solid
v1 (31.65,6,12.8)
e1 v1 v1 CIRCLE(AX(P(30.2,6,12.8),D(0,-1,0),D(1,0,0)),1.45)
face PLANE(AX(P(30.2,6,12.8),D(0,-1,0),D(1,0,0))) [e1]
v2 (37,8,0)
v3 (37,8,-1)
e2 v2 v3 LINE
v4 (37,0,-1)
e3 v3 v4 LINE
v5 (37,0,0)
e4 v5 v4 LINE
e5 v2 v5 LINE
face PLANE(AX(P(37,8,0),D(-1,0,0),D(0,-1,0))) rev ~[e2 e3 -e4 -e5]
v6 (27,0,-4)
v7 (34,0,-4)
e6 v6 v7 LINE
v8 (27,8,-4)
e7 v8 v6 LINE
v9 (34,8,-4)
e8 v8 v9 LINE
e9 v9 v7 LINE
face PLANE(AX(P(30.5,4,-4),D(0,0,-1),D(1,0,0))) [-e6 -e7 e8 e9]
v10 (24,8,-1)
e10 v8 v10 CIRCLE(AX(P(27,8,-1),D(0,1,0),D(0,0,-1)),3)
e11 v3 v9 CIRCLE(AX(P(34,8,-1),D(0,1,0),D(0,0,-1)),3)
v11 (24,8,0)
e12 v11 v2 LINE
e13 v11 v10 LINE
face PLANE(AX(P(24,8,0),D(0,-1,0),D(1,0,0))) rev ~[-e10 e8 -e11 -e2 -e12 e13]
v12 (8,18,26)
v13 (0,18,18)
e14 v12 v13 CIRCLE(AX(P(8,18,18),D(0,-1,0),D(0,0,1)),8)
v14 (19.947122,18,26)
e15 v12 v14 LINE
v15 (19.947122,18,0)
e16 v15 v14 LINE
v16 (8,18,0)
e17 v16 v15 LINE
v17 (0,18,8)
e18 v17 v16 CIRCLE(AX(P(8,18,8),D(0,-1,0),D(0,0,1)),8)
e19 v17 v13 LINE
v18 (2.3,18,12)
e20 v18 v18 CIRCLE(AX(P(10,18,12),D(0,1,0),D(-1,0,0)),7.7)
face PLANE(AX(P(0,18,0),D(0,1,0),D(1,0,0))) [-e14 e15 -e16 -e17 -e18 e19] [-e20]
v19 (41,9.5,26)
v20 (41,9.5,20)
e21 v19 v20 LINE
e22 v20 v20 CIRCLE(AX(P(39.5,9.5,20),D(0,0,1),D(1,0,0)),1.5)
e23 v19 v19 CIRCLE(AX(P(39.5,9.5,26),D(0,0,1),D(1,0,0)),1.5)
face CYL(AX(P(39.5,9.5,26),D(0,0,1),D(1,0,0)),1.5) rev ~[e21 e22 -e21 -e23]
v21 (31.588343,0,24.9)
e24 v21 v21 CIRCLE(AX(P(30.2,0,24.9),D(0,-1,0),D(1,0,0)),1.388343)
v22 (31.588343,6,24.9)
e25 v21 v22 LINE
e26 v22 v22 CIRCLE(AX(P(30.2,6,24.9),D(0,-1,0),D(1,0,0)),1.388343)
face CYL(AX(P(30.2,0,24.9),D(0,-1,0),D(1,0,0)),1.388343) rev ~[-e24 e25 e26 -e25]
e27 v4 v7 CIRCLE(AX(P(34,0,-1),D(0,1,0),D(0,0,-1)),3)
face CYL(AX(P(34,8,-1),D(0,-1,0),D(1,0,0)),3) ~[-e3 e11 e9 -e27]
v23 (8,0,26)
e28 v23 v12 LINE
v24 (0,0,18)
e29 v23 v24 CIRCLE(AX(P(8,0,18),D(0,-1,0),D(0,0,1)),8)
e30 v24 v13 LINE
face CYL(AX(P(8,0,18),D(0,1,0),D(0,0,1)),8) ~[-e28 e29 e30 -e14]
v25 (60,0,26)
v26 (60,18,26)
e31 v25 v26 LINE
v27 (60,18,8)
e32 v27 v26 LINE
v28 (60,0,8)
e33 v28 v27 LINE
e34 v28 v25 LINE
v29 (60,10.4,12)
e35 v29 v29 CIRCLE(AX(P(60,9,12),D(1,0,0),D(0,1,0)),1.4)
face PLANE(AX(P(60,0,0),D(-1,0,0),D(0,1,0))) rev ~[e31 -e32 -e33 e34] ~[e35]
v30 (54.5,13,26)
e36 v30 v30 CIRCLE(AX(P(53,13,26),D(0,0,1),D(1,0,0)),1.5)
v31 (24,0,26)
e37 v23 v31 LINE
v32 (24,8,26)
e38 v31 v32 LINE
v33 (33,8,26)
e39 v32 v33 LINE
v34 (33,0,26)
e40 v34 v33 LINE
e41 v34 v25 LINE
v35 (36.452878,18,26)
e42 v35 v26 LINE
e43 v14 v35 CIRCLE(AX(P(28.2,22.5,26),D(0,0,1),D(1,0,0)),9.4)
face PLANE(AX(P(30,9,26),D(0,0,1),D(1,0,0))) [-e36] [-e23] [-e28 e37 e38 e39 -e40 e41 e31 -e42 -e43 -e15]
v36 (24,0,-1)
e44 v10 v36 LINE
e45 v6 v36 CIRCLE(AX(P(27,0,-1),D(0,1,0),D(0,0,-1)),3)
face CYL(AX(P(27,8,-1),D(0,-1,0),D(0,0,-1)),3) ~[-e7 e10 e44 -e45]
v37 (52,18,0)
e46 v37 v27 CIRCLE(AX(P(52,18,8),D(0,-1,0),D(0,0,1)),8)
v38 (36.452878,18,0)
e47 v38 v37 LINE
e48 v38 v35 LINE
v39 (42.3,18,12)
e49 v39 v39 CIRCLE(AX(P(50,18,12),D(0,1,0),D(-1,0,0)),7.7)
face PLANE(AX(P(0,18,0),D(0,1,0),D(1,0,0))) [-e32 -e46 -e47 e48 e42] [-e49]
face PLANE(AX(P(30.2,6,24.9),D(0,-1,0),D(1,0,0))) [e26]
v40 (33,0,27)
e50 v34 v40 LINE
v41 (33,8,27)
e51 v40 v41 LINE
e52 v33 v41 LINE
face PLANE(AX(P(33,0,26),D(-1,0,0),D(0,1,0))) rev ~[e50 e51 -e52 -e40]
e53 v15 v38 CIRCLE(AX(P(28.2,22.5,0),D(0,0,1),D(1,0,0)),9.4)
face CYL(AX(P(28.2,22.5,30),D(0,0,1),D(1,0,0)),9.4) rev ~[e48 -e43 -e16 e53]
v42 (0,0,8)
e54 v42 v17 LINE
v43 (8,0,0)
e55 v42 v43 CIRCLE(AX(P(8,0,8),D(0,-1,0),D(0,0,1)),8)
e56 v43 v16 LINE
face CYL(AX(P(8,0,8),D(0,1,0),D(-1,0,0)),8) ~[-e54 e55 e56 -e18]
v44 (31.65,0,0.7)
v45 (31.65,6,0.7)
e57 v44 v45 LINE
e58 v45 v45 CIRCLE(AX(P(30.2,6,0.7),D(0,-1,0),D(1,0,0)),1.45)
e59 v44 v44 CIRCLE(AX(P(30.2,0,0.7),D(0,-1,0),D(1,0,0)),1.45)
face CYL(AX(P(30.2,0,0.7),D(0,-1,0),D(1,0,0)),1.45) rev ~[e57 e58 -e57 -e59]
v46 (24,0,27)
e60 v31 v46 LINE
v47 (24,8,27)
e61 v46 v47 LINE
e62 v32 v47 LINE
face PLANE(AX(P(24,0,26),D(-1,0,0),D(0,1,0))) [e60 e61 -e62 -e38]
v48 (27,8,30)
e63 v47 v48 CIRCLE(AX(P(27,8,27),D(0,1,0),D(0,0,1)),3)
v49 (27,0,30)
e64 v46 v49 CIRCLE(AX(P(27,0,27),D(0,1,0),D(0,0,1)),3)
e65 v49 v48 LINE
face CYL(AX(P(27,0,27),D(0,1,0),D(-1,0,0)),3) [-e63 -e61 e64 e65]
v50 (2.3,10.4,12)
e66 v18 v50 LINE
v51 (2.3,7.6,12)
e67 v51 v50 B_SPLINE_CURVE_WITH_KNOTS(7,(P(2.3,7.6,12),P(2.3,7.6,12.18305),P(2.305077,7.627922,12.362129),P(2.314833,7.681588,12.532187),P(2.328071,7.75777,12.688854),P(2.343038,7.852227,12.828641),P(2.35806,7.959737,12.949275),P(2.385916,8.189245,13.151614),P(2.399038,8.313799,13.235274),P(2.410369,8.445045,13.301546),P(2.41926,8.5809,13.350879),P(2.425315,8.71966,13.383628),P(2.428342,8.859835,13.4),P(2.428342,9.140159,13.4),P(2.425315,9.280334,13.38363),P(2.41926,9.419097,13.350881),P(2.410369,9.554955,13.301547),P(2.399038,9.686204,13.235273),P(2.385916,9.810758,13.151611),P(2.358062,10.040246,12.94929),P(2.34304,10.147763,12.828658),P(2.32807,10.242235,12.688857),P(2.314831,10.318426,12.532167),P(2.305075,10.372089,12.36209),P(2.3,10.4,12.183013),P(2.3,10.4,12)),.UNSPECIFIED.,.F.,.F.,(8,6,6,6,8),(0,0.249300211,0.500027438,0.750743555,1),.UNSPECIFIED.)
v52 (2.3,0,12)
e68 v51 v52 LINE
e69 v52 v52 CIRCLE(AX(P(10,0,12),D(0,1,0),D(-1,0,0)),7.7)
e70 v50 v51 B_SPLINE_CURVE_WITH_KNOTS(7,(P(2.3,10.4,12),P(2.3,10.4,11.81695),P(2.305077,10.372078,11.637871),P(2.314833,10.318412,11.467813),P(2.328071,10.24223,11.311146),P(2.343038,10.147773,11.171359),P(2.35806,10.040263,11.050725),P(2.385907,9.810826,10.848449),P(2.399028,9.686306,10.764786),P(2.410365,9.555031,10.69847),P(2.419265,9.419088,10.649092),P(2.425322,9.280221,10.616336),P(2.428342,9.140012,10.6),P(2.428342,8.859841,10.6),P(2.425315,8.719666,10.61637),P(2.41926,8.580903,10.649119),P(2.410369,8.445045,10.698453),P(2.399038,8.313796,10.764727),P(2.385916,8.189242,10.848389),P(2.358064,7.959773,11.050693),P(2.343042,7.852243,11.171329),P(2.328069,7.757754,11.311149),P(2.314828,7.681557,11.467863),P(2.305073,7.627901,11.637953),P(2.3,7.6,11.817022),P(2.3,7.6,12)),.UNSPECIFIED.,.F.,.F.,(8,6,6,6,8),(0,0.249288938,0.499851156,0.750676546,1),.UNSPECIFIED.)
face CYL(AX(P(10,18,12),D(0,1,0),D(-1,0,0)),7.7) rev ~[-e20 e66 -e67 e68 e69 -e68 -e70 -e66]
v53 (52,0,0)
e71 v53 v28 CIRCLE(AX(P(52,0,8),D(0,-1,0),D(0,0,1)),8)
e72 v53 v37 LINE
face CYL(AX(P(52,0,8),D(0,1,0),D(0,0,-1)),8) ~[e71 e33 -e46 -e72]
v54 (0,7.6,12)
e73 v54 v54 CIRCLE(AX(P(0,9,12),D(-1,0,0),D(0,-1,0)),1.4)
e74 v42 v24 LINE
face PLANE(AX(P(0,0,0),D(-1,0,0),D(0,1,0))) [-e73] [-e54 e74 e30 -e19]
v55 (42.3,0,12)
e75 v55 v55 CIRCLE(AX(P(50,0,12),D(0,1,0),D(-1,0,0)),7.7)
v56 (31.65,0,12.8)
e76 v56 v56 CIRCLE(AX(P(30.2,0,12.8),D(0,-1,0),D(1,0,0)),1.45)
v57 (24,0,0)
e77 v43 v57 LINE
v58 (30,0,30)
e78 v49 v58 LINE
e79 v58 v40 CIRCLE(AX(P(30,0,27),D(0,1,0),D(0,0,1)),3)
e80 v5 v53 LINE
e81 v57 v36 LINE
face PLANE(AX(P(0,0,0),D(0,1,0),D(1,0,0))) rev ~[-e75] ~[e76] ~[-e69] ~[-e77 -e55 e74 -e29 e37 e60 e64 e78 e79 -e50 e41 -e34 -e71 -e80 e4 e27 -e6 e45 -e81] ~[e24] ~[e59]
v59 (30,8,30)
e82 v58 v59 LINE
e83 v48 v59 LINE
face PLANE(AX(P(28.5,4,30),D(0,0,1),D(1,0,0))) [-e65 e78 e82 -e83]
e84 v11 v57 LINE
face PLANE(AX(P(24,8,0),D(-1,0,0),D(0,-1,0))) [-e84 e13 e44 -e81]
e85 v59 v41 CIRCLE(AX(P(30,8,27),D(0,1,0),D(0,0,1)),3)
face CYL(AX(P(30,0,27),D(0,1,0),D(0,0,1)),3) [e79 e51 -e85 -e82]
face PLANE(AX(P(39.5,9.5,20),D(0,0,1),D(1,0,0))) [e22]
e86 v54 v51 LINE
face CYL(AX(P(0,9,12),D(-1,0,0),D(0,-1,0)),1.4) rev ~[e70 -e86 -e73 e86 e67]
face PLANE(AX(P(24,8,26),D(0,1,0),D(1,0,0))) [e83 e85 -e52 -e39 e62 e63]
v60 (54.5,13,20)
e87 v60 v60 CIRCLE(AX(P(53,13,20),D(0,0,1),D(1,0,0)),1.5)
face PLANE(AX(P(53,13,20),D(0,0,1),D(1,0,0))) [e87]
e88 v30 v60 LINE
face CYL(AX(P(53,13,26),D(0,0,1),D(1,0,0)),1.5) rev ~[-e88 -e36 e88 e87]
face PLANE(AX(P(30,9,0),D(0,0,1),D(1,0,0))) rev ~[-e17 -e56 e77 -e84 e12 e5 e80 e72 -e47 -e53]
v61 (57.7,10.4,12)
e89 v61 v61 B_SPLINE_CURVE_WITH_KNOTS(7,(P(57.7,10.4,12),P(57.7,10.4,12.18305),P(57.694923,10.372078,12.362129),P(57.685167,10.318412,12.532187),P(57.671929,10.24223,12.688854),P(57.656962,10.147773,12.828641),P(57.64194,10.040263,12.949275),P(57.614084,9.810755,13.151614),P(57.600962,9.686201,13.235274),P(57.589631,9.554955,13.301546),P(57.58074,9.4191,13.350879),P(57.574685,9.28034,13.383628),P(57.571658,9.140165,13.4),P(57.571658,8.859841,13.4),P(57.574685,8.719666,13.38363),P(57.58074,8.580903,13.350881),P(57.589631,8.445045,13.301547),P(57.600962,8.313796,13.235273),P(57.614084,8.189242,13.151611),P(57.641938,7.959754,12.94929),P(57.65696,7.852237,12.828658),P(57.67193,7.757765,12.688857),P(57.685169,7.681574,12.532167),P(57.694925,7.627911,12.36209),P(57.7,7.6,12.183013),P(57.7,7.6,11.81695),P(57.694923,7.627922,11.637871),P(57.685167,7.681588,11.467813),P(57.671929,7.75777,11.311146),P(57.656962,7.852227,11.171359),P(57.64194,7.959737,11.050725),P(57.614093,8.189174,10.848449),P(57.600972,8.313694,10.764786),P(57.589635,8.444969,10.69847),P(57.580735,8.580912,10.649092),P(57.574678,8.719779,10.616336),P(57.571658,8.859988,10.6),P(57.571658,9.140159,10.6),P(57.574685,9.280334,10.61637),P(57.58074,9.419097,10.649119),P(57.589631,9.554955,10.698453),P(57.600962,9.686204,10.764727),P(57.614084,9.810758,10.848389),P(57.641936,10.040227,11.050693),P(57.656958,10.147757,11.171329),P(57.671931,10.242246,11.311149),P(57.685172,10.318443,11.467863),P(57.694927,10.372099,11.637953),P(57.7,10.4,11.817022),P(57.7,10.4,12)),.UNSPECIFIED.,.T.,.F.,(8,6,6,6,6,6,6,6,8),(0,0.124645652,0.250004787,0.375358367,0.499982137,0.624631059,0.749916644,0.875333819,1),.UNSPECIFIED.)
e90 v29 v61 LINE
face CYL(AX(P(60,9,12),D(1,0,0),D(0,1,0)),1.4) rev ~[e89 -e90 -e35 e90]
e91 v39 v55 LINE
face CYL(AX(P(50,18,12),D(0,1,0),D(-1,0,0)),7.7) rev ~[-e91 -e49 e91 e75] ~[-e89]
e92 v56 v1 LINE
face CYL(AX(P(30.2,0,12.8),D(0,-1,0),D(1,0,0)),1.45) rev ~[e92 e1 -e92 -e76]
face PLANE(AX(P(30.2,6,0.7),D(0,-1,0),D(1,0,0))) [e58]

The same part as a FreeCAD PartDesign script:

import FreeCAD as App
import Part
import Sketcher
from FreeCAD import Vector


def edges_at(feature, points):
    """Names of the edges that pass closest to the given points."""
    edges = feature.Shape.Edges
    near = lambda p: min(range(len(edges)), key=lambda i: edges[i].distToShape(Part.Vertex(*p))[0])
    return sorted({f"Edge{near(p) + 1}" for p in points})


def add_polygon(sketch, points):
    """Adds a closed chain of lines whose ends are joined by coincident constraints."""
    first, n = sketch.GeometryCount, len(points)
    for a, b in zip(points, points[1:] + points[:1]):
        sketch.addGeometry(Part.LineSegment(App.Vector(*a, 0), App.Vector(*b, 0)), False)
    for i in range(n):
        sketch.addConstraint(Sketcher.Constraint("Coincident", first + i, 2, first + (i + 1) % n, 1))

doc = App.newDocument("Part")
body = doc.addObject("PartDesign::Body", "Body")

# Sketch on XY plane
sketch1 = body.newObject("Sketcher::SketchObject", "Sketch")
sketch1.AttachmentSupport = (doc.getObject("XY_Plane"), [""])
sketch1.MapMode = "FlatFace"
add_polygon(sketch1, [(0, 18), (0, 0), (60, 0), (60, 18)])  # lines 0-3
sketch1.addConstraint(Sketcher.Constraint("Vertical", 0))
sketch1.addConstraint(Sketcher.Constraint("Horizontal", 1))
sketch1.addConstraint(Sketcher.Constraint("Vertical", 2))
sketch1.addConstraint(Sketcher.Constraint("Horizontal", 3))
sketch1.addConstraint(Sketcher.Constraint("Coincident", 0, 2, -1, 1))
sketch1.addConstraint(Sketcher.Constraint("DistanceX", 1, 1, 1, 2, 60.0))
sketch1.addConstraint(Sketcher.Constraint("DistanceY", 0, 2, 0, 1, 18.0))
pad1 = body.newObject("PartDesign::Pad", "Pad")
pad1.Profile = sketch1
pad1.Length = 26

# Sketch on XZ plane
sketch2 = body.newObject("Sketcher::SketchObject", "Sketch001")
sketch2.AttachmentSupport = (doc.getObject("XZ_Plane"), [""])
sketch2.MapMode = "FlatFace"
sketch2.AttachmentOffset = App.Placement(Vector(0, 0, -18), App.Rotation())
sketch2.addGeometry(Part.Circle(Vector(50, 12, 0), Vector(0, 0, 1), 8), False)
sketch2.addGeometry(Part.Circle(Vector(10, 12, 0), Vector(0, 0, 1), 8), False)
sketch2.addConstraint(Sketcher.Constraint("Equal", 0, 1))
sketch2.addConstraint(Sketcher.Constraint("Horizontal", 0, 3, 1, 3))
sketch2.addConstraint(Sketcher.Constraint("Diameter", 0, 15.4))
sketch2.addConstraint(Sketcher.Constraint("DistanceX", -1, 1, 0, 3, 50.0))
sketch2.addConstraint(Sketcher.Constraint("DistanceY", -1, 1, 0, 3, 12.0))
sketch2.addConstraint(Sketcher.Constraint("DistanceX", -1, 1, 1, 3, 10.0))
pocket1 = body.newObject("PartDesign::Pocket", "Pocket")
pocket1.Profile = sketch2
pocket1.Type = "ThroughAll"
pocket1.Reversed = True

# Sketch on YZ plane
sketch3 = body.newObject("Sketcher::SketchObject", "Sketch002")
sketch3.AttachmentSupport = (doc.getObject("YZ_Plane"), [""])
sketch3.MapMode = "FlatFace"
sketch3.AttachmentOffset = App.Placement(Vector(0, 0, 60), App.Rotation())
sketch3.addGeometry(Part.Circle(Vector(9, 12, 0), Vector(0, 0, 1), 1.4), False)
sketch3.addConstraint(Sketcher.Constraint("Diameter", 0, 2.8))
sketch3.addConstraint(Sketcher.Constraint("DistanceX", -1, 1, 0, 3, 9.0))
sketch3.addConstraint(Sketcher.Constraint("DistanceY", -1, 1, 0, 3, 12.0))
pocket2 = body.newObject("PartDesign::Pocket", "Pocket001")
pocket2.Profile = sketch3
pocket2.Length = 5

# Sketch on XY plane
sketch4 = body.newObject("Sketcher::SketchObject", "Sketch003")
sketch4.AttachmentSupport = (doc.getObject("XY_Plane"), [""])
sketch4.MapMode = "FlatFace"
sketch4.AttachmentOffset = App.Placement(Vector(0, 0, 26), App.Rotation())
sketch4.addGeometry(Part.Circle(Vector(39.5, 9.5, 0), Vector(0, 0, 1), 1.5), False)
sketch4.addGeometry(Part.Circle(Vector(53, 13, 0), Vector(0, 0, 1), 1.5), False)
sketch4.addConstraint(Sketcher.Constraint("Equal", 0, 1))
sketch4.addConstraint(Sketcher.Constraint("Diameter", 0, 3.0))
sketch4.addConstraint(Sketcher.Constraint("DistanceX", -1, 1, 1, 3, 53.0))
sketch4.addConstraint(Sketcher.Constraint("DistanceY", -1, 1, 1, 3, 13.0))
sketch4.addConstraint(Sketcher.Constraint("DistanceX", -1, 1, 0, 3, 39.5))
sketch4.addConstraint(Sketcher.Constraint("DistanceY", -1, 1, 0, 3, 9.5))
pocket3 = body.newObject("PartDesign::Pocket", "Pocket002")
pocket3.Profile = sketch4
pocket3.Length = 6

# Sketch on YZ plane
sketch5 = body.newObject("Sketcher::SketchObject", "Sketch004")
sketch5.AttachmentSupport = (doc.getObject("YZ_Plane"), [""])
sketch5.MapMode = "FlatFace"
sketch5.addGeometry(Part.Circle(Vector(9, 12, 0), Vector(0, 0, 1), 1.4), False)
sketch5.addConstraint(Sketcher.Constraint("Diameter", 0, 2.8))
sketch5.addConstraint(Sketcher.Constraint("DistanceX", -1, 1, 0, 3, 9.0))
sketch5.addConstraint(Sketcher.Constraint("DistanceY", -1, 1, 0, 3, 12.0))
pocket4 = body.newObject("PartDesign::Pocket", "Pocket003")
pocket4.Profile = sketch5
pocket4.Length = 5
pocket4.Reversed = True

# Sketch on XY plane
sketch6 = body.newObject("Sketcher::SketchObject", "Sketch005")
sketch6.AttachmentSupport = (doc.getObject("XY_Plane"), [""])
sketch6.MapMode = "FlatFace"
add_polygon(sketch6, [(24, 0), (24, 8), (37, 8), (37, 0)])  # lines 0-3
sketch6.addConstraint(Sketcher.Constraint("Vertical", 0))
sketch6.addConstraint(Sketcher.Constraint("Horizontal", 1))
sketch6.addConstraint(Sketcher.Constraint("Vertical", 2))
sketch6.addConstraint(Sketcher.Constraint("Horizontal", 3))
sketch6.addConstraint(Sketcher.Constraint("PointOnObject", 2, 2, -1))
sketch6.addConstraint(Sketcher.Constraint("DistanceX", 1, 1, 1, 2, 13.0))
sketch6.addConstraint(Sketcher.Constraint("DistanceY", 0, 1, 0, 2, 8.0))
sketch6.addConstraint(Sketcher.Constraint("DistanceX", -1, 1, 0, 2, 24.0))
pad2 = body.newObject("PartDesign::Pad", "Pad001")
pad2.Profile = sketch6
pad2.Length = 4
pad2.Reversed = True

# Sketch on XY plane
sketch7 = body.newObject("Sketcher::SketchObject", "Sketch006")
sketch7.AttachmentSupport = (doc.getObject("XY_Plane"), [""])
sketch7.MapMode = "FlatFace"
sketch7.AttachmentOffset = App.Placement(Vector(0, 0, 26), App.Rotation())
add_polygon(sketch7, [(24, 8), (24, 0), (33, 0), (33, 8)])  # lines 0-3
sketch7.addConstraint(Sketcher.Constraint("Vertical", 0))
sketch7.addConstraint(Sketcher.Constraint("Horizontal", 1))
sketch7.addConstraint(Sketcher.Constraint("Vertical", 2))
sketch7.addConstraint(Sketcher.Constraint("Horizontal", 3))
sketch7.addConstraint(Sketcher.Constraint("PointOnObject", 0, 2, -1))
sketch7.addConstraint(Sketcher.Constraint("DistanceX", 1, 1, 1, 2, 9.0))
sketch7.addConstraint(Sketcher.Constraint("DistanceY", 0, 2, 0, 1, 8.0))
sketch7.addConstraint(Sketcher.Constraint("DistanceX", -1, 1, 0, 2, 24.0))
pad3 = body.newObject("PartDesign::Pad", "Pad002")
pad3.Profile = sketch7
pad3.Length = 4

# Sketch on XY plane
sketch8 = body.newObject("Sketcher::SketchObject", "Sketch007")
sketch8.AttachmentSupport = (doc.getObject("XY_Plane"), [""])
sketch8.MapMode = "FlatFace"
sketch8.AttachmentOffset = App.Placement(Vector(0, 0, 30), App.Rotation())
sketch8.addGeometry(Part.Circle(Vector(28, 22, 0), Vector(0, 0, 1), 9), False)
sketch8.addConstraint(Sketcher.Constraint("Diameter", 0, 18.8))
sketch8.addConstraint(Sketcher.Constraint("DistanceX", -1, 1, 0, 3, 28.2))
sketch8.addConstraint(Sketcher.Constraint("DistanceY", -1, 1, 0, 3, 22.5))
pocket5 = body.newObject("PartDesign::Pocket", "Pocket004")
pocket5.Profile = sketch8
pocket5.Type = "ThroughAll"
doc.recompute()

fillet = body.newObject("PartDesign::Fillet", "Fillet")
fillet.Base = (pocket5, edges_at(pocket5, [
    (24, 4, 30),
    (33, 4, 30),
    (37, 4, -4),
    (24, 4, -4),
]))
fillet.Radius = 3

# Sketch on XZ plane
sketch9 = body.newObject("Sketcher::SketchObject", "Sketch008")
sketch9.AttachmentSupport = (doc.getObject("XZ_Plane"), [""])
sketch9.MapMode = "FlatFace"
sketch9.addGeometry(Part.Circle(Vector(30.2, 12.8, 0), Vector(0, 0, 1), 1.4), False)
sketch9.addGeometry(Part.Circle(Vector(30.2, 0.7, 0), Vector(0, 0, 1), 1.4), False)
sketch9.addGeometry(Part.Circle(Vector(30.2, 24.9, 0), Vector(0, 0, 1), 1.4), False)
sketch9.addConstraint(Sketcher.Constraint("Equal", 0, 1))
sketch9.addConstraint(Sketcher.Constraint("Vertical", 0, 3, 1, 3))
sketch9.addConstraint(Sketcher.Constraint("Vertical", 1, 3, 2, 3))
sketch9.addConstraint(Sketcher.Constraint("Diameter", 0, 2.9))
sketch9.addConstraint(Sketcher.Constraint("DistanceX", -1, 1, 0, 3, 30.2))
sketch9.addConstraint(Sketcher.Constraint("DistanceY", -1, 1, 0, 3, 12.8))
sketch9.addConstraint(Sketcher.Constraint("DistanceY", -1, 1, 1, 3, 0.7))
sketch9.addConstraint(Sketcher.Constraint("DistanceY", -1, 1, 2, 3, 24.9))
sketch9.addConstraint(Sketcher.Constraint("Diameter", 2, 2.776686))
pocket6 = body.newObject("PartDesign::Pocket", "Pocket005")
pocket6.Profile = sketch9
pocket6.Length = 6
doc.recompute()

fillet2 = body.newObject("PartDesign::Fillet", "Fillet001")
fillet2.Base = (pocket6, edges_at(pocket6, [(0, 9, 26), (0, 9, 0), (60, 9, 0)]))
fillet2.Radius = 8

doc.recompute()
